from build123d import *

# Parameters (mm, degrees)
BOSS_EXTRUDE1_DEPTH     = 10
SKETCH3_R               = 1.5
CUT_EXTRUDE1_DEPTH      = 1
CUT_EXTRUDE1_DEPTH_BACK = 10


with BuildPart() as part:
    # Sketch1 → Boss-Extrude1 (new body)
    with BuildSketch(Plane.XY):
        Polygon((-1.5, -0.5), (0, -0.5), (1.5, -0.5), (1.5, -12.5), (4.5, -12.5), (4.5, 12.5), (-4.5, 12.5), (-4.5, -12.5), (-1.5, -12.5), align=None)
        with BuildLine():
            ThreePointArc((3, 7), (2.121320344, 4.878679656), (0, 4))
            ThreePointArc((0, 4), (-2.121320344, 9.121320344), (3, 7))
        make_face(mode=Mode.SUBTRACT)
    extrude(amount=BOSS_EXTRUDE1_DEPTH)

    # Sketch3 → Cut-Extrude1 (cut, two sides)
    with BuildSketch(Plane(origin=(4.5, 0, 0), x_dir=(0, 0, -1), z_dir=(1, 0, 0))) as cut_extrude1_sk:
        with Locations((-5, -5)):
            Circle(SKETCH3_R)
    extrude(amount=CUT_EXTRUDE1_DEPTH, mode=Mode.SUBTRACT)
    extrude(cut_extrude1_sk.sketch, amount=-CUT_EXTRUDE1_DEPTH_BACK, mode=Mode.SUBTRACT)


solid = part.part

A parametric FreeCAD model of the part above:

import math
import FreeCAD as App
import Part
import Sketcher

V = App.Vector


def add_polygon(sketch, points):
    """Adds a closed chain of lines whose ends are joined by coincident constraints."""
    first, n = sketch.GeometryCount, len(points)
    for a, b in zip(points, points[1:] + points[:1]):
        sketch.addGeometry(Part.LineSegment(App.Vector(*a, 0), App.Vector(*b, 0)), False)
    for i in range(n):
        sketch.addConstraint(Sketcher.Constraint("Coincident", first + i, 2, first + (i + 1) % n, 1))

doc = App.newDocument("Part")
body = doc.addObject("PartDesign::Body", "Body")

sketch1 = doc.addObject("Sketcher::SketchObject", "Sketch")
body.addObject(sketch1)
sketch1.AttachmentSupport = (doc.XY_Plane, [""])
sketch1.MapMode = "FlatFace"
add_polygon(sketch1, [(-1.5, -0.5), (1.5, -0.5), (1.5, -12.5), (4.5, -12.5), (4.5, 12.5), (-4.5, 12.5), (-4.5, -12.5), (-1.5, -12.5)])
sketch1.addGeometry(Part.ArcOfCircle(Part.Circle(V(0, 7, 0), V(0, 0, 1), 3), math.radians(0), math.radians(270)), False)
sketch1.addGeometry(Part.ArcOfCircle(Part.Circle(V(0, 7, 0), V(0, 0, 1), 3), math.radians(-90), math.radians(0)), False)
sketch1.addConstraint([
    Sketcher.Constraint("Tangent", 8, 1, 9, 2),
    Sketcher.Constraint("Coincident", 9, 1, 8, 2),
    Sketcher.Constraint("Horizontal", 0),
    Sketcher.Constraint("Vertical", 1),
    Sketcher.Constraint("Horizontal", 2),
    Sketcher.Constraint("Vertical", 3),
    Sketcher.Constraint("Horizontal", 4),
    Sketcher.Constraint("Vertical", 5),
    Sketcher.Constraint("Horizontal", 6),
    Sketcher.Constraint("Vertical", 7),
    Sketcher.Constraint("Symmetric", 2, 2, 4, 2, -1, 1),
    Sketcher.Constraint("Symmetric", 1, 2, 6, 2, -2),
    Sketcher.Constraint("PointOnObject", 8, 3, -2),
    Sketcher.Constraint("PointOnObject", 9, 1, -2),
    Sketcher.Constraint("Horizontal", 9, 3, 8, 1),
    Sketcher.Constraint("Equal", 0, 2),
    Sketcher.Constraint("Radius", 8, 3.0),
    Sketcher.Constraint("DistanceX", 0, 1, 0, 2, 3.0),
    Sketcher.Constraint("DistanceY", 1, 2, 1, 1, 12.0),
    Sketcher.Constraint("DistanceY", 3, 1, 3, 2, 25.0),
    Sketcher.Constraint("DistanceY", -1, 1, 8, 3, 7.0),
])
pad1 = doc.addObject("PartDesign::Pad", "Pad")
body.addObject(pad1)
pad1.Profile = sketch1
pad1.Length = 10

sketch2 = doc.addObject("Sketcher::SketchObject", "Sketch001")
body.addObject(sketch2)
sketch2.AttachmentSupport = (doc.YZ_Plane, [""])
sketch2.MapMode = "FlatFace"
sketch2.AttachmentOffset = App.Placement(V(0, 0, 4.5), App.Rotation())
sketch2.addGeometry(Part.Circle(V(-5, 5, 0), V(0, 0, 1), 1.5), False)
sketch2.addConstraint([
    Sketcher.Constraint("Diameter", 0, 3.0),
    Sketcher.Constraint("DistanceX", 0, 3, -1, 1, 5.0),
    Sketcher.Constraint("DistanceY", -1, 1, 0, 3, 5.0),
])
pocket1 = doc.addObject("PartDesign::Pocket", "Pocket")
body.addObject(pocket1)
pocket1.Profile = sketch2
pocket1.Type = "ThroughAll"
pocket1.Midplane = True

doc.recompute()
